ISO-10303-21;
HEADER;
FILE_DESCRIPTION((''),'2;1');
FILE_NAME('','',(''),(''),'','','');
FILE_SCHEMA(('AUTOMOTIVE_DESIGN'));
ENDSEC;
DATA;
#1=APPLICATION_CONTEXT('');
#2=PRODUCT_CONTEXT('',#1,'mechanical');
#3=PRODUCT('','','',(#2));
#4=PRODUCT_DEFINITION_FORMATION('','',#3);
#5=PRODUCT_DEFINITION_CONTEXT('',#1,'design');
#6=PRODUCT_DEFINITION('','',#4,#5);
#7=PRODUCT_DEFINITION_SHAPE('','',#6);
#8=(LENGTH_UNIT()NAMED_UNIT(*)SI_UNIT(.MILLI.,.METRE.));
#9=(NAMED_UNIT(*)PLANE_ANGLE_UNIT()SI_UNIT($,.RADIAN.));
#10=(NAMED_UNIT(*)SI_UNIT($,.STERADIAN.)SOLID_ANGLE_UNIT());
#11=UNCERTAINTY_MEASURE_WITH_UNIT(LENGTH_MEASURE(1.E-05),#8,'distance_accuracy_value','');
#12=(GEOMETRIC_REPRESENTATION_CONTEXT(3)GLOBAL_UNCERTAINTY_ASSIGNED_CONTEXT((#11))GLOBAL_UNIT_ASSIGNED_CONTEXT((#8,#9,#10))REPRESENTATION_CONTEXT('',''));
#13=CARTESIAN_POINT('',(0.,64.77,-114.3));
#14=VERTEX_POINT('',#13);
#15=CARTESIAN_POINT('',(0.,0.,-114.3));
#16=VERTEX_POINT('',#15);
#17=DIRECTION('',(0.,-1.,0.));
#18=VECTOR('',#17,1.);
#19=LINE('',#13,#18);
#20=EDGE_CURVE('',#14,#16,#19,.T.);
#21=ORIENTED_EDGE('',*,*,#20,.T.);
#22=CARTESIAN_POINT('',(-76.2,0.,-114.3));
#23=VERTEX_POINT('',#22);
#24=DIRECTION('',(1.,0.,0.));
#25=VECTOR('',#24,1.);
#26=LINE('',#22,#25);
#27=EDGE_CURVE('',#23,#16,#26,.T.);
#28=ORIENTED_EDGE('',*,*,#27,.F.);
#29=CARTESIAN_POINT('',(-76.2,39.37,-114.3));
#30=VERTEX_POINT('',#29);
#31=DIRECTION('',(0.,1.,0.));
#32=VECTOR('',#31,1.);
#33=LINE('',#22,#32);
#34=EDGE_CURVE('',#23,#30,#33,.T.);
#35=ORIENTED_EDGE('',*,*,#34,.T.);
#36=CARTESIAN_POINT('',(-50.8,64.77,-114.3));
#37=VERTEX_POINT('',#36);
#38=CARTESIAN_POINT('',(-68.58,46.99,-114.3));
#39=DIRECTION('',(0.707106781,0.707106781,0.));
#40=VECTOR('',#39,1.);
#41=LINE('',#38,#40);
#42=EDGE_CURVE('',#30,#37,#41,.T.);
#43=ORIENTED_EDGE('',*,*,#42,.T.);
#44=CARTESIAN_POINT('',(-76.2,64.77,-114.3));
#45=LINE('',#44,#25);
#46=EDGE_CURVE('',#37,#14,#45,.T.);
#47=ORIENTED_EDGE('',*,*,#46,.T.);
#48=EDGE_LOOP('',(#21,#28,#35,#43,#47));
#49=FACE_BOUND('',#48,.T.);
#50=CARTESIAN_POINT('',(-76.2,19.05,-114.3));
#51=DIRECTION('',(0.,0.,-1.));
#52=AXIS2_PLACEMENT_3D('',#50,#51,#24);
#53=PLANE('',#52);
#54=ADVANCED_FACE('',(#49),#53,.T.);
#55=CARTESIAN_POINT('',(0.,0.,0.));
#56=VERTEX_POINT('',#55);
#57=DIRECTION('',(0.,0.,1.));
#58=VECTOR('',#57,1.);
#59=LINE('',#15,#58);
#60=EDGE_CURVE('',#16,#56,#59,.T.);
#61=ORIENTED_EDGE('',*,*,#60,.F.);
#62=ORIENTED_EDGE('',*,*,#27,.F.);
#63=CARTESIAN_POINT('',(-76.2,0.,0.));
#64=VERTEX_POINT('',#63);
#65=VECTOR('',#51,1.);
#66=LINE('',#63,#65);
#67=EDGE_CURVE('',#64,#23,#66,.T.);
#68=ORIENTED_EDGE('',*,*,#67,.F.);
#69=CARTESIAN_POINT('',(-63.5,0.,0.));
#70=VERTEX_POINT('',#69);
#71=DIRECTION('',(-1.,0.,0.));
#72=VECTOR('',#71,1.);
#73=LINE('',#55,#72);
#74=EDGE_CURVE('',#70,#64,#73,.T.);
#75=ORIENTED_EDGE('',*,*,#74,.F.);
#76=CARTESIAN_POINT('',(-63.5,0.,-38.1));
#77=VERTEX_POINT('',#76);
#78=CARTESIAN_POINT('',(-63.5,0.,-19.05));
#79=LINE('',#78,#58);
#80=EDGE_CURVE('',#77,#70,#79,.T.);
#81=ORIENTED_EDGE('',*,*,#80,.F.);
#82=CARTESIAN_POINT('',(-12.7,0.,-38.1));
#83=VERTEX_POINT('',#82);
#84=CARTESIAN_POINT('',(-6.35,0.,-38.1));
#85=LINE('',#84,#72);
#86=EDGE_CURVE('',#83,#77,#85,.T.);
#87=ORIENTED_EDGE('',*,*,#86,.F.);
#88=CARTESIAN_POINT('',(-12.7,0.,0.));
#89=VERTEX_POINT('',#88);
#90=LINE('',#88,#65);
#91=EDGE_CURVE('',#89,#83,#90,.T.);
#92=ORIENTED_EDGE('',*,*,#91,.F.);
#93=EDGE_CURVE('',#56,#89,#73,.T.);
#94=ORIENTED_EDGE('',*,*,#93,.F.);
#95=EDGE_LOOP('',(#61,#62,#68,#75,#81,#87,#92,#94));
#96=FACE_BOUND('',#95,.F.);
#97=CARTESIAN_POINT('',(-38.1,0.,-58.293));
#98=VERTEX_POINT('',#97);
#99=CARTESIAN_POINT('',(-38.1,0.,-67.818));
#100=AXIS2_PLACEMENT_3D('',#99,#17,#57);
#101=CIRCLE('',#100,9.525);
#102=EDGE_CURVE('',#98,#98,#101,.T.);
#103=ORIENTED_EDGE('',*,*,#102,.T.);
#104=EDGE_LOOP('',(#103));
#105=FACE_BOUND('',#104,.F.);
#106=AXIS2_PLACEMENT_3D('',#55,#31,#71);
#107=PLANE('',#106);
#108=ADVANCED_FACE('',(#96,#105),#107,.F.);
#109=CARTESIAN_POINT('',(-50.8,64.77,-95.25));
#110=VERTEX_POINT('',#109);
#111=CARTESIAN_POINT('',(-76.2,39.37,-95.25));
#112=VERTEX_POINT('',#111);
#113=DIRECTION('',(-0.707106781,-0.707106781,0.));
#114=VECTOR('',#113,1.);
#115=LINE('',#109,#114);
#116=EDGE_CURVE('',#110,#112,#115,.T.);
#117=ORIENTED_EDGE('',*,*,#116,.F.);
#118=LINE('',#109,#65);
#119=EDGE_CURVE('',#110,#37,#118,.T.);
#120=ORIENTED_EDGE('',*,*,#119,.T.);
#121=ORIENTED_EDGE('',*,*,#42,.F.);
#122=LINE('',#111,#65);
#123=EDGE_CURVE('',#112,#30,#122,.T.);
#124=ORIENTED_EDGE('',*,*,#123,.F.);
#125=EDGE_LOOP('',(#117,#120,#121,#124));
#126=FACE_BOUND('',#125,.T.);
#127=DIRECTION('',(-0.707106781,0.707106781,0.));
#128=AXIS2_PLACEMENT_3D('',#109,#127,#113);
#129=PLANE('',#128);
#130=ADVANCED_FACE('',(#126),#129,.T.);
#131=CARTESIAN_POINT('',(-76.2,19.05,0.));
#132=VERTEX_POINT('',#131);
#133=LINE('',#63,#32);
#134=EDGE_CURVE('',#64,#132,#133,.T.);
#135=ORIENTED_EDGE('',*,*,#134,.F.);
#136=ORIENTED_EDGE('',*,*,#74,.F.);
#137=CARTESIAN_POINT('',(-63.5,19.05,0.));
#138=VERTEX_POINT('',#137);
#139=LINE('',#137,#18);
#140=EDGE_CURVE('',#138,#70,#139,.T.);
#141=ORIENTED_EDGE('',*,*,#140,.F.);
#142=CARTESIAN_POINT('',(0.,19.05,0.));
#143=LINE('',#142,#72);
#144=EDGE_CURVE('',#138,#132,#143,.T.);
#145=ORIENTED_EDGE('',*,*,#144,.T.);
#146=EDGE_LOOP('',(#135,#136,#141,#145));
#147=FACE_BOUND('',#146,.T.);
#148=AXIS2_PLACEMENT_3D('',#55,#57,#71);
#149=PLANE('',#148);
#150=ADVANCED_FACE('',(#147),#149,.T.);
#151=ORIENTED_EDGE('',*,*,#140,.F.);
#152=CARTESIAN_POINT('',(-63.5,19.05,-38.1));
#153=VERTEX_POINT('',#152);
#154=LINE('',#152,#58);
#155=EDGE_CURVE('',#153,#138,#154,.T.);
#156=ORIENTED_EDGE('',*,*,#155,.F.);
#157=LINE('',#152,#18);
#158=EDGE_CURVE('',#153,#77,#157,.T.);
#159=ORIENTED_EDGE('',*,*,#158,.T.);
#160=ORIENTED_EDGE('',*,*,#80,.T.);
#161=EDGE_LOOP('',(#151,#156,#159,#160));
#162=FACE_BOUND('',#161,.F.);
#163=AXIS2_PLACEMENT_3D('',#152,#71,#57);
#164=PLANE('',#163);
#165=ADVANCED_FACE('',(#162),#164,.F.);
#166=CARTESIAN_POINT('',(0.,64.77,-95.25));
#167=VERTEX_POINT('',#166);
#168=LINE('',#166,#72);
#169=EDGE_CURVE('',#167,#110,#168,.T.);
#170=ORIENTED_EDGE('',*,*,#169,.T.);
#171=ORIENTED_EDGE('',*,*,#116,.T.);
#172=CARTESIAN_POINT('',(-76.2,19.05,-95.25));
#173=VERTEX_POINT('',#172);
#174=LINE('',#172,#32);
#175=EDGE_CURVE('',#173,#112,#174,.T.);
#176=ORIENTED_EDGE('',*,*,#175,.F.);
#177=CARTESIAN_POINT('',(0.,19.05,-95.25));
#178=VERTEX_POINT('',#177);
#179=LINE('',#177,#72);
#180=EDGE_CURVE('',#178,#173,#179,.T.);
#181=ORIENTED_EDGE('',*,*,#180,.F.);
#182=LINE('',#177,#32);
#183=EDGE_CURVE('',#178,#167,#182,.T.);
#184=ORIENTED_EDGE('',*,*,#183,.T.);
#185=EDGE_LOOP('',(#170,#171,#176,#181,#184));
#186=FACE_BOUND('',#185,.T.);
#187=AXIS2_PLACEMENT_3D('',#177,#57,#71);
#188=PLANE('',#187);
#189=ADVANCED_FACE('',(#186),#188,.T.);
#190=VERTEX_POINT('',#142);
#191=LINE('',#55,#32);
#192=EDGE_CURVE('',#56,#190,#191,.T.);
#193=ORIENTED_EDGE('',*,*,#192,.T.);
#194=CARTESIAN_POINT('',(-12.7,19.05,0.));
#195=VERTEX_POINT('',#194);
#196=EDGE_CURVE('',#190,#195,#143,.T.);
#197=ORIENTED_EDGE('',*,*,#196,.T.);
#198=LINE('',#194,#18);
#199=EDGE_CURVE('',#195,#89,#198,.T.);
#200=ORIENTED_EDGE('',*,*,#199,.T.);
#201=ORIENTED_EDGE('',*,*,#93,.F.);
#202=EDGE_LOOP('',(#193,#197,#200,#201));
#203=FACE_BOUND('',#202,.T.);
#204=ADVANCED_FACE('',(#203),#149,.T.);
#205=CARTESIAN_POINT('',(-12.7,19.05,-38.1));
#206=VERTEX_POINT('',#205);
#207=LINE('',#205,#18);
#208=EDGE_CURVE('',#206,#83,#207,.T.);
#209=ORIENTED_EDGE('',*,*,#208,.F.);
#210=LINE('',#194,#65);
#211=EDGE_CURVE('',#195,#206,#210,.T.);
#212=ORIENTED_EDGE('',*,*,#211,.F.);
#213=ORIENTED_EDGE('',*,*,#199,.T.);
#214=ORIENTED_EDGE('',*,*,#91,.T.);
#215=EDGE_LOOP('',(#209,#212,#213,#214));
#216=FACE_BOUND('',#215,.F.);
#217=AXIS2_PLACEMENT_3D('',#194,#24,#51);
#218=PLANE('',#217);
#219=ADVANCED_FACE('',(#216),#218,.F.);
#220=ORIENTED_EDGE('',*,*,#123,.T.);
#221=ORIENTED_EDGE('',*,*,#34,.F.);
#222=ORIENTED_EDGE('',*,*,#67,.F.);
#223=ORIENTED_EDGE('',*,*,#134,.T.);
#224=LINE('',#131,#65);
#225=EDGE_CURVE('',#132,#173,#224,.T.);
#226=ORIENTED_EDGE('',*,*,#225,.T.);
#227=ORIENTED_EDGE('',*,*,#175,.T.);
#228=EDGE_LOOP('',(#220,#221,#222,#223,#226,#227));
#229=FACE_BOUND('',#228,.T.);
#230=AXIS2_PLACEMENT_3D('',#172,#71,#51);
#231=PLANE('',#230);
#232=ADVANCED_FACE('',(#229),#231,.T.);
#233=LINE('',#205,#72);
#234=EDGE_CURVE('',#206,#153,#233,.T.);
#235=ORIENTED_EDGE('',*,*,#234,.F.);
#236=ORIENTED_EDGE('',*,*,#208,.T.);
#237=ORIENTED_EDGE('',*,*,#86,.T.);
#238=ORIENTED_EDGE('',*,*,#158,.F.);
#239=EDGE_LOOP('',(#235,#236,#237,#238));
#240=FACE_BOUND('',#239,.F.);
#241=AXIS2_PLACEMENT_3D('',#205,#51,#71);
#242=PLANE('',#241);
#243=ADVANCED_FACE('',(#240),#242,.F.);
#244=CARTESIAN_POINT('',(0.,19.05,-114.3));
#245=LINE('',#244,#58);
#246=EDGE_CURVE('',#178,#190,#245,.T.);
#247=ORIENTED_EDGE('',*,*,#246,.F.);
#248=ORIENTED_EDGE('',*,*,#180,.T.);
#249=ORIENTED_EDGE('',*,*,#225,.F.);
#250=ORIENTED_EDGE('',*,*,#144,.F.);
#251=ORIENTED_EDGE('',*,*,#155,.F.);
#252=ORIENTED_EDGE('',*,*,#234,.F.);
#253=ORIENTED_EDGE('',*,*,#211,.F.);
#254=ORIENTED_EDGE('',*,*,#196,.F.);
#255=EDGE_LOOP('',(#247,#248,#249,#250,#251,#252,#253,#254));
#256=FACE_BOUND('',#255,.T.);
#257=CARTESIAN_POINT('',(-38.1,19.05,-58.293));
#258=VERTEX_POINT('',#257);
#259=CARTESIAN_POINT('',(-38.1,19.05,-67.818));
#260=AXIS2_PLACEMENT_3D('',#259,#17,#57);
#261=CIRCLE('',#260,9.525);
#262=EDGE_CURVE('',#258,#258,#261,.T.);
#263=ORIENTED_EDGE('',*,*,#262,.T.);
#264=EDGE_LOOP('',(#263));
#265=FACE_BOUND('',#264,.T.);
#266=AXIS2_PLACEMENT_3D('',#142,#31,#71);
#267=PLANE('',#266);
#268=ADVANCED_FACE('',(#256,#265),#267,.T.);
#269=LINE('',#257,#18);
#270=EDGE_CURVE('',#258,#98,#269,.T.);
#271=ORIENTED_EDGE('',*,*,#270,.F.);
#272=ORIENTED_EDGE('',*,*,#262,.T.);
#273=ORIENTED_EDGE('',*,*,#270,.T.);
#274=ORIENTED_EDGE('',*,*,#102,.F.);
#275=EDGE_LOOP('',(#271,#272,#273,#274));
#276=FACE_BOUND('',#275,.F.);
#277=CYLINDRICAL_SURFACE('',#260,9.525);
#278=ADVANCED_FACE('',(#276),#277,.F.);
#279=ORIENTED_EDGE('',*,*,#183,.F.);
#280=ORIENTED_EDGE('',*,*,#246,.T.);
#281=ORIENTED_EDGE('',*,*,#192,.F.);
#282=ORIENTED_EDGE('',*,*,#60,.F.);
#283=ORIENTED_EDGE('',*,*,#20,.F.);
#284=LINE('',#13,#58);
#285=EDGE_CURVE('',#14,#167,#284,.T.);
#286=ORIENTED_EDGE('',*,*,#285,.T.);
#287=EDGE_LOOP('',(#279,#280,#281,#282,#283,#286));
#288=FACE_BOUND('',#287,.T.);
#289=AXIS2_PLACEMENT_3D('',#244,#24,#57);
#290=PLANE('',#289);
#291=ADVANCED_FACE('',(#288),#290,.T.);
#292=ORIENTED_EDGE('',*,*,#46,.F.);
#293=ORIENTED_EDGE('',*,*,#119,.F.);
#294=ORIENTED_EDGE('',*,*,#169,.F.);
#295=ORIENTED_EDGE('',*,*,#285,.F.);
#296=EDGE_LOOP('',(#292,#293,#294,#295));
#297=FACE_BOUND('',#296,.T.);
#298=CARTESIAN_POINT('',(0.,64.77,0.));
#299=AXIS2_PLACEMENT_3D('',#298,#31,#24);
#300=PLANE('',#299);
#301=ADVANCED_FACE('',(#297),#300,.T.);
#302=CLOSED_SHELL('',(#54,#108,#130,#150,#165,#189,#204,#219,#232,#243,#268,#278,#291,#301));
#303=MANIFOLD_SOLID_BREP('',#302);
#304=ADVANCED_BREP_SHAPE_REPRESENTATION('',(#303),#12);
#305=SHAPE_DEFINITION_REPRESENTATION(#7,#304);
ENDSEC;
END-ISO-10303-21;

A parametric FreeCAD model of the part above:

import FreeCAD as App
import Part
import Sketcher
Q = App.Units.Quantity


def add_polygon(sketch, points):
    """Adds a closed chain of lines whose ends are joined by coincident constraints."""
    first, n = sketch.GeometryCount, len(points)
    for a, b in zip(points, points[1:] + points[:1]):
        sketch.addGeometry(Part.LineSegment(App.Vector(*a, 0), App.Vector(*b, 0)), False)
    for i in range(n):
        sketch.addConstraint(Sketcher.Constraint("Coincident", first + i, 2, first + (i + 1) % n, 1))

doc = App.newDocument("Part")
params = doc.addObject("Spreadsheet::Sheet", "Params")
for row, (alias, value) in enumerate([
    ("sketch1_width", "3 in"),
    ("sketch1_height", "4.5 in"),
    ("pad1_length", "0.75 in"),
    ("sketch2_width", "2 in"),
    ("sketch2_height", "1.5 in"),
    ("sketch3_width", "3 in"),
    ("sketch3_height", "0.75 in"),
    ("pad2_length", "1.8 in"),
    ("sketch4_width", "1 in"),
    ("sketch5_diameter", "0.75 in"),
    ("hole_diameter", "0.75 in"),
], start=1):
    params.set(f"A{row}", alias)
    params.set(f"B{row}", "=" + value)
    params.setAlias(f"B{row}", alias)

body = doc.addObject("PartDesign::Body", "Body")

sketch1 = doc.addObject("Sketcher::SketchObject", "Sketch")
body.addObject(sketch1)
sketch1.AttachmentSupport = (doc.XZ_Plane, [""])
sketch1.MapMode = "FlatFace"
add_polygon(sketch1, [(-76, 0), (0, 0), (0, -114), (-76, -114)])
sketch1.addConstraint([
    Sketcher.Constraint("Horizontal", 0),
    Sketcher.Constraint("Vertical", 1),
    Sketcher.Constraint("Horizontal", 2),
    Sketcher.Constraint("Vertical", 3),
    Sketcher.Constraint("Coincident", 0, 2, -1, 1),
    Sketcher.Constraint("DistanceX", 0, 1, 0, 2, Q("3 in")),
    Sketcher.Constraint("DistanceY", 1, 2, 1, 1, Q("4.5 in")),
])
sketch1.setExpression("Constraints[9]", "Params.sketch1_width")
sketch1.setExpression("Constraints[10]", "Params.sketch1_height")
pad1 = doc.addObject("PartDesign::Pad", "Pad")
body.addObject(pad1)
pad1.Profile = sketch1
pad1.setExpression("Length", "Params.pad1_length")
pad1.Reversed = True

sketch2 = doc.addObject("Sketcher::SketchObject", "Sketch001")
body.addObject(sketch2)
sketch2.AttachmentSupport = (doc.XZ_Plane, [""])
sketch2.MapMode = "FlatFace"
sketch2.AttachmentOffset = App.Placement(App.Vector(0, 0, -0.75 * 25.4), App.Rotation())
add_polygon(sketch2, [(-64, -38), (-64, 0), (-13, 0), (-13, -38)])
sketch2.addConstraint([
    Sketcher.Constraint("Vertical", 0),
    Sketcher.Constraint("Horizontal", 1),
    Sketcher.Constraint("Vertical", 2),
    Sketcher.Constraint("Horizontal", 3),
    Sketcher.Constraint("PointOnObject", 0, 2, -1),
    Sketcher.Constraint("DistanceX", 1, 1, 1, 2, Q("2 in")),
    Sketcher.Constraint("DistanceY", 0, 1, 0, 2, Q("1.5 in")),
    Sketcher.Constraint("DistanceX", 1, 2, -1, 1, Q("0.5 in")),
])
sketch2.setExpression("Constraints[9]", "Params.sketch2_width")
sketch2.setExpression("Constraints[10]", "Params.sketch2_height")
pocket1 = doc.addObject("PartDesign::Pocket", "Pocket")
body.addObject(pocket1)
pocket1.Profile = sketch2
pocket1.Type = "ThroughAll"
pocket1.Reversed = True

sketch3 = doc.addObject("Sketcher::SketchObject", "Sketch002")
body.addObject(sketch3)
sketch3.AttachmentSupport = (doc.XZ_Plane, [""])
sketch3.MapMode = "FlatFace"
sketch3.AttachmentOffset = App.Placement(App.Vector(0, 0, -0.75 * 25.4), App.Rotation())
add_polygon(sketch3, [(0, -114), (-76, -114), (-76, -95), (0, -95)])
sketch3.addConstraint([
    Sketcher.Constraint("Horizontal", 0),
    Sketcher.Constraint("Vertical", 1),
    Sketcher.Constraint("Horizontal", 2),
    Sketcher.Constraint("Vertical", 3),
    Sketcher.Constraint("PointOnObject", 2, 2, -2),
    Sketcher.Constraint("DistanceX", 0, 2, 0, 1, Q("3 in")),
    Sketcher.Constraint("DistanceY", 1, 1, 1, 2, Q("0.75 in")),
    Sketcher.Constraint("DistanceY", 0, 2, -1, 1, Q("4.5 in")),
])
sketch3.setExpression("Constraints[9]", "Params.sketch3_width")
sketch3.setExpression("Constraints[10]", "Params.sketch3_height")
pad2 = doc.addObject("PartDesign::Pad", "Pad001")
body.addObject(pad2)
pad2.Profile = sketch3
pad2.setExpression("Length", "Params.pad2_length")
pad2.Reversed = True

sketch4 = doc.addObject("Sketcher::SketchObject", "Sketch003")
body.addObject(sketch4)
sketch4.AttachmentSupport = (doc.XY_Plane, [""])
sketch4.MapMode = "FlatFace"
sketch4.AttachmentOffset = App.Placement(App.Vector(0, 0, -3.75 * 25.4), App.Rotation())
add_polygon(sketch4, [(-76, 65), (-76, 39), (-51, 65)])
sketch4.addConstraint([
    Sketcher.Constraint("Vertical", 0),
    Sketcher.Constraint("Horizontal", 2),
    Sketcher.Constraint("Equal", 2, 0),
    Sketcher.Constraint("DistanceX", 2, 2, 2, 1, Q("1 in")),
    Sketcher.Constraint("DistanceX", 1, 2, -1, 1, Q("2 in")),
    Sketcher.Constraint("DistanceY", -1, 1, 0, 2, Q("1.55 in")),
])
sketch4.setExpression("Constraints[6]", "Params.sketch4_width")
pocket2 = doc.addObject("PartDesign::Pocket", "Pocket001")
body.addObject(pocket2)
pocket2.Profile = sketch4
pocket2.Type = "ThroughAll"

sketch5 = doc.addObject("Sketcher::SketchObject", "Sketch004")
body.addObject(sketch5)
sketch5.AttachmentSupport = (doc.XZ_Plane, [""])
sketch5.MapMode = "FlatFace"
sketch5.AttachmentOffset = App.Placement(App.Vector(0, 0, -0.75 * 25.4), App.Rotation())
sketch5.addGeometry(Part.Circle(App.Vector(-38, -68, 0), App.Vector(0, 0, 1), 10), False)
sketch5.addConstraint([
    Sketcher.Constraint("Diameter", 0, Q("0.75 in")),
    Sketcher.Constraint("DistanceX", 0, 3, -1, 1, Q("1.5 in")),
    Sketcher.Constraint("DistanceY", 0, 3, -1, 1, Q("2.67 in")),
])
sketch5.setExpression("Constraints[0]", "Params.sketch5_diameter")
doc.recompute()
hole = doc.addObject("PartDesign::Hole", "Hole")
body.addObject(hole)
hole.Profile = sketch5
hole.ThreadType = "None"
hole.setExpression("Diameter", "Params.hole_diameter")
hole.DepthType = "ThroughAll"
hole.Reversed = True

doc.recompute()
